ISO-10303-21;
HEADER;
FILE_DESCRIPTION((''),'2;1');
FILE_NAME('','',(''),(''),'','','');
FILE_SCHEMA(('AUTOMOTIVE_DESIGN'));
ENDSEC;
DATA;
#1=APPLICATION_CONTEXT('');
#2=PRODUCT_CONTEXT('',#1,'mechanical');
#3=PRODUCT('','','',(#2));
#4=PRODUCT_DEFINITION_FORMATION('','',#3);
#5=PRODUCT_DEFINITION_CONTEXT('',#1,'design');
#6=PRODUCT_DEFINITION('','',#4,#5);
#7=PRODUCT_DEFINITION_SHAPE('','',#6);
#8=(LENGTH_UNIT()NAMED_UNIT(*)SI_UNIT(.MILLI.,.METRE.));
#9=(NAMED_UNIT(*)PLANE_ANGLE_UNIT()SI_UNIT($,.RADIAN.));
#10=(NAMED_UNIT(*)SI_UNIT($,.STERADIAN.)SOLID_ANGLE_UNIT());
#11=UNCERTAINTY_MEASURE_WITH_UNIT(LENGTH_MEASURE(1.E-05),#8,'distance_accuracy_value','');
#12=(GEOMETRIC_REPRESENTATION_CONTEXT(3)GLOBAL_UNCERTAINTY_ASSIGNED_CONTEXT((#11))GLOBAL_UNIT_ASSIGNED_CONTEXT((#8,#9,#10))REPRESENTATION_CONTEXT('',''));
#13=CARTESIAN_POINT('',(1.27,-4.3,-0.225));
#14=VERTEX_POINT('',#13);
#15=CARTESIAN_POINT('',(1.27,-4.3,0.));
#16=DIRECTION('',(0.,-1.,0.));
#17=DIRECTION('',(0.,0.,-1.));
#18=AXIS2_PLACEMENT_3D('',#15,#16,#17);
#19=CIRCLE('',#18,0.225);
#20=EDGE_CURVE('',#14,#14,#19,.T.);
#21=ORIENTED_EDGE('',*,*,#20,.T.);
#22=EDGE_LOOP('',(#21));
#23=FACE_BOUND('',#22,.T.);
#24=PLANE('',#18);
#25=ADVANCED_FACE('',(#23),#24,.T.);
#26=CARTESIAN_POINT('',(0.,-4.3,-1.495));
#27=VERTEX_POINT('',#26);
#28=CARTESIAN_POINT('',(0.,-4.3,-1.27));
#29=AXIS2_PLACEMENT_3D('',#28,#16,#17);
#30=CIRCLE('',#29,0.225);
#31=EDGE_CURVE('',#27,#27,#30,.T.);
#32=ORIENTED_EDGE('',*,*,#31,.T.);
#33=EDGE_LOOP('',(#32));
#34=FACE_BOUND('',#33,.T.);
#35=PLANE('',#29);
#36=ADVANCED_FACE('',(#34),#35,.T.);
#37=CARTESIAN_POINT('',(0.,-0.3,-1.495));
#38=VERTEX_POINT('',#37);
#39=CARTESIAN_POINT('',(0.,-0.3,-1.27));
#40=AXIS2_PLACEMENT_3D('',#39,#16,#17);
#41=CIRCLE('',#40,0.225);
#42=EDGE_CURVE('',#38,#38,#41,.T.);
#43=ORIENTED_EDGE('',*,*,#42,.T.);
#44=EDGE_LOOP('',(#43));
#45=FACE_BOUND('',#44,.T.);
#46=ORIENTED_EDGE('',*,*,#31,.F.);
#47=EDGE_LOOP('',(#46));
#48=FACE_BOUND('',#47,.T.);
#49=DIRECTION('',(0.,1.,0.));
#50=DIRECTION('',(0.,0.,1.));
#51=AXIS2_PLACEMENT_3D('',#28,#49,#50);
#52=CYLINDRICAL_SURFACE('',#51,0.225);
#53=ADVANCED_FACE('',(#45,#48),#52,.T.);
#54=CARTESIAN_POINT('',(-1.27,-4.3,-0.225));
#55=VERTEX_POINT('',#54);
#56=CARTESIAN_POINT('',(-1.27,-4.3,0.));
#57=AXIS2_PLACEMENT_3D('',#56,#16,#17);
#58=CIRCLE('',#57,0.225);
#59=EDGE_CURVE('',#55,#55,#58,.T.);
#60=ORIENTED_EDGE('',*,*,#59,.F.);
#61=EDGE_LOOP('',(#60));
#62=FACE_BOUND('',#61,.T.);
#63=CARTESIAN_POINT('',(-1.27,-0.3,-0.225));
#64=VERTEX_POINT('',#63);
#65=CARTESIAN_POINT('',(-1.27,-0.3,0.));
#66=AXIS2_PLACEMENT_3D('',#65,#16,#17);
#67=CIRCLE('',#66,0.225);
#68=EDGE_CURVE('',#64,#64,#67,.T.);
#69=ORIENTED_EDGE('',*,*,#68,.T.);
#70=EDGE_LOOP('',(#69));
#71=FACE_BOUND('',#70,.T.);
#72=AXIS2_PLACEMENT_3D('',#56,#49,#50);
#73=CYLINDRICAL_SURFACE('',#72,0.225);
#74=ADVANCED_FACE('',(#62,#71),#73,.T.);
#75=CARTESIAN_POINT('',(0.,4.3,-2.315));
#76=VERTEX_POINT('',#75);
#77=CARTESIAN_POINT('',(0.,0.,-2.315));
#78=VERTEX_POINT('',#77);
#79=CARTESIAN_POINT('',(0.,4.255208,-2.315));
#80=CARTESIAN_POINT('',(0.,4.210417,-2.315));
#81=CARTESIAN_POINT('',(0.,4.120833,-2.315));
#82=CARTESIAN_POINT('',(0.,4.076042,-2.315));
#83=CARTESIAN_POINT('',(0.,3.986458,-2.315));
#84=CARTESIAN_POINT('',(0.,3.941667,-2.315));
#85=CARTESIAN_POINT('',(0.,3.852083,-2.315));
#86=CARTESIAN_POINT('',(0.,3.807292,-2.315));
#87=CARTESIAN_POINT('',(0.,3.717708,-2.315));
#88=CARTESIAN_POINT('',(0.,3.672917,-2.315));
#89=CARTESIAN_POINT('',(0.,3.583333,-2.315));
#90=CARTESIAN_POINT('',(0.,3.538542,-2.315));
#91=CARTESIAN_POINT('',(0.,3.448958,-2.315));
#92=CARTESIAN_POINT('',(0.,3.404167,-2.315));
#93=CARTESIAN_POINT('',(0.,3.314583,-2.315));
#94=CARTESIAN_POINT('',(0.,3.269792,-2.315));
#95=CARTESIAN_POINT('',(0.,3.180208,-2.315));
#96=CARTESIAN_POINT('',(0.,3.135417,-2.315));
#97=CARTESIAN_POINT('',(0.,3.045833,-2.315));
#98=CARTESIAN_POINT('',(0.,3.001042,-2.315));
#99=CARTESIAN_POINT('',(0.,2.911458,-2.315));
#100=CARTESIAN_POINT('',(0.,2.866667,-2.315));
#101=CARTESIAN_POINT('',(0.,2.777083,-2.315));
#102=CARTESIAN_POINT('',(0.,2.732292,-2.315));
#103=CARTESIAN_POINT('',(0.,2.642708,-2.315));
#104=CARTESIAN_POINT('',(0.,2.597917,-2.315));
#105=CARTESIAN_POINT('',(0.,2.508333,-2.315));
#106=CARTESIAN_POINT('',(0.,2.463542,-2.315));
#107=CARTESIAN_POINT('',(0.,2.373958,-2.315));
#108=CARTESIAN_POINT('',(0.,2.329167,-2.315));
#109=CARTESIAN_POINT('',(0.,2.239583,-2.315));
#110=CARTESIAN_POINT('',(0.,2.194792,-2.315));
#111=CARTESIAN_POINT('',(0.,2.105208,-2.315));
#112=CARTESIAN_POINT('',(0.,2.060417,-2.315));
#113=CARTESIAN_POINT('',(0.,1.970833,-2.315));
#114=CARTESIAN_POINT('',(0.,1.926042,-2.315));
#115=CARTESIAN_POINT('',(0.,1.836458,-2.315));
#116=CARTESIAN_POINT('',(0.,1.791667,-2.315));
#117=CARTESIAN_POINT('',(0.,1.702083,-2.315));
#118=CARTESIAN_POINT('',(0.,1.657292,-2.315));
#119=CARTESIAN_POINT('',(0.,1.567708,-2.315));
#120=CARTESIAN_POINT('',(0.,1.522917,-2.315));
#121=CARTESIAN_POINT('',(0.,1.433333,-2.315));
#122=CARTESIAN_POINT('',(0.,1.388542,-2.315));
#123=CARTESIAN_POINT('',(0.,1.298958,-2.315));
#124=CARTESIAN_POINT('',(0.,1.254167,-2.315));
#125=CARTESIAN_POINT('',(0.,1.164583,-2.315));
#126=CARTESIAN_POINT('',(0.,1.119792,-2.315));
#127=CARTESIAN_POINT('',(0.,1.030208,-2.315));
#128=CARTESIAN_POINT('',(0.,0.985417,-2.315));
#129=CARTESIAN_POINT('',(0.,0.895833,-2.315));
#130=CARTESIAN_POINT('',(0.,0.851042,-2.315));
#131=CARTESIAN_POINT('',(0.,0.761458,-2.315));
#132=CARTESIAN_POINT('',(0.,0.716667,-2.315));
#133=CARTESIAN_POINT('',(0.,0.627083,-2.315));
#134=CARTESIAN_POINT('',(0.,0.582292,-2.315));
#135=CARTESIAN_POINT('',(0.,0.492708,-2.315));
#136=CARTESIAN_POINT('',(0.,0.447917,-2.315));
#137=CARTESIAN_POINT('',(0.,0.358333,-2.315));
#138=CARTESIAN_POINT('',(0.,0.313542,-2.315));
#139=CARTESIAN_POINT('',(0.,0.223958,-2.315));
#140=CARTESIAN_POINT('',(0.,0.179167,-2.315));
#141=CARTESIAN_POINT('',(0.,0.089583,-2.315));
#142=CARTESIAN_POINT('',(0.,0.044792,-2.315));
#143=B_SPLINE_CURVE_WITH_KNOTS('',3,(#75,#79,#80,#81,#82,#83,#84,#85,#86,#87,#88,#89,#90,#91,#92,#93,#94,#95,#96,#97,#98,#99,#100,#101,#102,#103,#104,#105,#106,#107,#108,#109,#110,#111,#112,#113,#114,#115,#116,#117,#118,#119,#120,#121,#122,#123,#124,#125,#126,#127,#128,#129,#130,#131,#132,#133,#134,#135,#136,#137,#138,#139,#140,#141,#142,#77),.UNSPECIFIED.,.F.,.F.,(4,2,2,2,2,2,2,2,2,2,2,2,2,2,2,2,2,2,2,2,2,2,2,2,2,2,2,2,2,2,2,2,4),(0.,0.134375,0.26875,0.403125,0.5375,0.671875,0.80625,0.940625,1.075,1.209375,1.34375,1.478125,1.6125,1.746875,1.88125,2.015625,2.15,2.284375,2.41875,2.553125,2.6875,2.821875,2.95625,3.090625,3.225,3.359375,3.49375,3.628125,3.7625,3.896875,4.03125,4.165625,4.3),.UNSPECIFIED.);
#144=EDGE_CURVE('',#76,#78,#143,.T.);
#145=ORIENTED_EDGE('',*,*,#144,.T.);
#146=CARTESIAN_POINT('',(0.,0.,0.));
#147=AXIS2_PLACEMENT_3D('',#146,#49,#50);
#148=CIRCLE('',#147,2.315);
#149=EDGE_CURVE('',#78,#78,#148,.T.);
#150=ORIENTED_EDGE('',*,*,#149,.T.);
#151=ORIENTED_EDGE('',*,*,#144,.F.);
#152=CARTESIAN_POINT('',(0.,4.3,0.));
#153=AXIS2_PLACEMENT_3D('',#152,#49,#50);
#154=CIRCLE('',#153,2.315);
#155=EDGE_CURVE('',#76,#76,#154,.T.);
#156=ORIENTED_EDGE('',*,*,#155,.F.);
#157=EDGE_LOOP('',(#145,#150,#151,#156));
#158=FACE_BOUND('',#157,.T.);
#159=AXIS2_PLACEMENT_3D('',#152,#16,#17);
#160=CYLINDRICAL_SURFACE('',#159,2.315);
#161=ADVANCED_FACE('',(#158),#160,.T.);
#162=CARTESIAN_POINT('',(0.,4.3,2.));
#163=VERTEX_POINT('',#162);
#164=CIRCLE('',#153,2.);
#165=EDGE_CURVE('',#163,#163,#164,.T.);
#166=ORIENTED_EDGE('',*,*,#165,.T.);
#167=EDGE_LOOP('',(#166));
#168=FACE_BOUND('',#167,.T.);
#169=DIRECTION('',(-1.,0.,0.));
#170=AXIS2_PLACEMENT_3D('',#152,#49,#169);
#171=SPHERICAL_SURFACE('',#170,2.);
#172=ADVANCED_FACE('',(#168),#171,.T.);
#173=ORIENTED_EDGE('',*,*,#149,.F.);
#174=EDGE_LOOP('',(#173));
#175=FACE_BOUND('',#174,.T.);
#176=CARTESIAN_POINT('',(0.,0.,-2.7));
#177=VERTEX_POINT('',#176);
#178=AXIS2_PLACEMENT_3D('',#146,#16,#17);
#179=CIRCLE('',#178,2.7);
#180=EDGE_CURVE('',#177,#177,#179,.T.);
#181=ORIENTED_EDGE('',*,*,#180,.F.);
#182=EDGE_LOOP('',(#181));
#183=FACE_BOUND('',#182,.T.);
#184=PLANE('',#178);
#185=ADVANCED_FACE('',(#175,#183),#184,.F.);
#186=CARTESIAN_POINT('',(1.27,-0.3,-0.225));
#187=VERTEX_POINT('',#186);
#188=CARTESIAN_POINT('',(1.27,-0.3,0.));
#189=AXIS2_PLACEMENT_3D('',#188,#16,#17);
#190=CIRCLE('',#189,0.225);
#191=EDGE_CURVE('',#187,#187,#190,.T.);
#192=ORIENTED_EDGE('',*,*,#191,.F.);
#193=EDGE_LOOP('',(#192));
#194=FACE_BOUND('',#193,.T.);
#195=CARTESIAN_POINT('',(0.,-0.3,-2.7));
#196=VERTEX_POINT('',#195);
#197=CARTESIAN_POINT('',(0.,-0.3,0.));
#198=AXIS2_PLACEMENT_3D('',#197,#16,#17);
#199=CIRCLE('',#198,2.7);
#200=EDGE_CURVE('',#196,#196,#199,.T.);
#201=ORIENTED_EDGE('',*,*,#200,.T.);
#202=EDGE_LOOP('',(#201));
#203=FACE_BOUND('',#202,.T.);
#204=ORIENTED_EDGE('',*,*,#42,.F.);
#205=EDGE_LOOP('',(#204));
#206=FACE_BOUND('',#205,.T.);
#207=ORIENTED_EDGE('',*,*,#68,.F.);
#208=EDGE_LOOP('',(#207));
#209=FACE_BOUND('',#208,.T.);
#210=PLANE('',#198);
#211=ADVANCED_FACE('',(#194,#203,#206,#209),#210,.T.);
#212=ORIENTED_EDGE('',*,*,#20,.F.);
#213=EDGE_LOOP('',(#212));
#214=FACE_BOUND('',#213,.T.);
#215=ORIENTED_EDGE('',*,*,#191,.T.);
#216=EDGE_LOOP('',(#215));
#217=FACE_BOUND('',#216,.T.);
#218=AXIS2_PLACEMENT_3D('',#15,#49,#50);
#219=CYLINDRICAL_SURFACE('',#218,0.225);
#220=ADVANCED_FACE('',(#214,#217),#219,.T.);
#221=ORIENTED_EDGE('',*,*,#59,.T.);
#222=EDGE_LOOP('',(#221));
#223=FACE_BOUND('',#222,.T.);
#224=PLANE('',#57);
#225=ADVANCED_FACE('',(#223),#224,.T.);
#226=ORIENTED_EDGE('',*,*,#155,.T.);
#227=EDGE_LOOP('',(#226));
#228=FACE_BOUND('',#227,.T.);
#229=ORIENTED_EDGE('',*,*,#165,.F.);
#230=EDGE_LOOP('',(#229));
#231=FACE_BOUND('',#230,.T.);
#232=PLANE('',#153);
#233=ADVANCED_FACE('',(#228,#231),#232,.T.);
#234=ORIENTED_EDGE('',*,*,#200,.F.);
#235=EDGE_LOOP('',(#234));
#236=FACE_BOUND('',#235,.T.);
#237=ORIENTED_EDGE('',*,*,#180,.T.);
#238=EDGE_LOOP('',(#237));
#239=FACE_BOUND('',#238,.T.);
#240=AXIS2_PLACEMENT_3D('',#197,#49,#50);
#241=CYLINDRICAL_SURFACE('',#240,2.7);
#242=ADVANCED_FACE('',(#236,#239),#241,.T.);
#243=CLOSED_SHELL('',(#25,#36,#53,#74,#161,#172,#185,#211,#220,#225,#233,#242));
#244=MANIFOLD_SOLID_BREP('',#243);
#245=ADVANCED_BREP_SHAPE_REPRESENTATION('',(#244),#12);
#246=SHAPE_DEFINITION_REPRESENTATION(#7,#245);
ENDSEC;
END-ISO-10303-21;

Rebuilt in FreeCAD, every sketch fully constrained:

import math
import FreeCAD as App
import Part
import Sketcher

V = App.Vector
Q = App.Units.Quantity

doc = App.newDocument("Part")
body = doc.addObject("PartDesign::Body", "Body")

sketch1 = doc.addObject("Sketcher::SketchObject", "Sketch")
body.addObject(sketch1)
sketch1.AttachmentSupport = (doc.XZ_Plane, [""])
sketch1.MapMode = "FlatFace"
sketch1.addGeometry(Part.Circle(V(0, 0, 0), V(0, 0, 1), 2.3), False)
sketch1.addConstraint(Sketcher.Constraint("Coincident", 0, 3, -1, 1))
sketch1.addConstraint(Sketcher.Constraint("Diameter", 0, Q("4.63 mm")))
pad1 = doc.addObject("PartDesign::Pad", "Pad")
body.addObject(pad1)
pad1.Profile = sketch1
pad1.Length = 4.3
pad1.Reversed = True

sketch2 = doc.addObject("Sketcher::SketchObject", "Sketch001")
body.addObject(sketch2)
sketch2.AttachmentSupport = (doc.XY_Plane, [""])
sketch2.MapMode = "FlatFace"
sketch2.addGeometry(Part.LineSegment(V(-2, 4.3, 0), V(0, 4.3, 0)), False)
sketch2.addGeometry(Part.LineSegment(V(0, 4.3, 0), V(0, 6.3, 0)), False)
sketch2.addGeometry(Part.ArcOfCircle(Part.Circle(V(0, 4.3, 0), V(0, 0, 1), 2), math.radians(90), math.radians(180)), False)
sketch2.addConstraint(Sketcher.Constraint("Coincident", 0, 2, 1, 1))
sketch2.addConstraint(Sketcher.Constraint("Coincident", 1, 2, 2, 1))
sketch2.addConstraint(Sketcher.Constraint("Coincident", 2, 2, 0, 1))
sketch2.addConstraint(Sketcher.Constraint("Horizontal", 0))
sketch2.addConstraint(Sketcher.Constraint("Vertical", 1))
sketch2.addConstraint(Sketcher.Constraint("Coincident", 0, 2, 2, 3))
sketch2.addConstraint(Sketcher.Constraint("PointOnObject", 2, 3, -2))
sketch2.addConstraint(Sketcher.Constraint("Radius", 2, Q("2 mm")))
sketch2.addConstraint(Sketcher.Constraint("DistanceY", -1, 1, 2, 3, Q("4.3 mm")))
revolution = doc.addObject("PartDesign::Revolution", "Revolution")
body.addObject(revolution)
revolution.Profile = sketch2
revolution.ReferenceAxis = (sketch2, ["V_Axis"])
revolution.Angle = 360

sketch3 = doc.addObject("Sketcher::SketchObject", "Sketch002")
body.addObject(sketch3)
sketch3.AttachmentSupport = (doc.XZ_Plane, [""])
sketch3.MapMode = "FlatFace"
sketch3.addGeometry(Part.Circle(V(0, 0, 0), V(0, 0, 1), 2.7), False)
sketch3.addConstraint(Sketcher.Constraint("Coincident", 0, 3, -1, 1))
sketch3.addConstraint(Sketcher.Constraint("Diameter", 0, Q("5.4 mm")))
pad2 = doc.addObject("PartDesign::Pad", "Pad001")
body.addObject(pad2)
pad2.Profile = sketch3
pad2.Length = 0.3

sketch4 = doc.addObject("Sketcher::SketchObject", "Sketch003")
body.addObject(sketch4)
sketch4.AttachmentSupport = (doc.XZ_Plane, [""])
sketch4.MapMode = "FlatFace"
sketch4.AttachmentOffset = App.Placement(V(0, 0, 0.3), App.Rotation())
sketch4.addGeometry(Part.Circle(V(-1.27, 0, 0), V(0, 0, 1), 0.23), False)
sketch4.addGeometry(Part.Circle(V(1.27, 0, 0), V(0, 0, 1), 0.23), False)
sketch4.addGeometry(Part.Circle(V(0, -1.27, 0), V(0, 0, 1), 0.23), False)
sketch4.addConstraint(Sketcher.Constraint("Equal", 0, 1))
sketch4.addConstraint(Sketcher.Constraint("Equal", 1, 2))
sketch4.addConstraint(Sketcher.Constraint("Symmetric", 0, 3, 1, 3, -1, 1))
sketch4.addConstraint(Sketcher.Constraint("PointOnObject", 0, 3, -1))
sketch4.addConstraint(Sketcher.Constraint("PointOnObject", 2, 3, -2))
sketch4.addConstraint(Sketcher.Constraint("Diameter", 0, Q("0.45 mm")))
sketch4.addConstraint(Sketcher.Constraint("DistanceX", 0, 3, -1, 1, Q("1.27 mm")))
sketch4.addConstraint(Sketcher.Constraint("DistanceY", 2, 3, -1, 1, Q("1.27 mm")))
pad3 = doc.addObject("PartDesign::Pad", "Pad002")
body.addObject(pad3)
pad3.Profile = sketch4
pad3.Length = 4

doc.recompute()
